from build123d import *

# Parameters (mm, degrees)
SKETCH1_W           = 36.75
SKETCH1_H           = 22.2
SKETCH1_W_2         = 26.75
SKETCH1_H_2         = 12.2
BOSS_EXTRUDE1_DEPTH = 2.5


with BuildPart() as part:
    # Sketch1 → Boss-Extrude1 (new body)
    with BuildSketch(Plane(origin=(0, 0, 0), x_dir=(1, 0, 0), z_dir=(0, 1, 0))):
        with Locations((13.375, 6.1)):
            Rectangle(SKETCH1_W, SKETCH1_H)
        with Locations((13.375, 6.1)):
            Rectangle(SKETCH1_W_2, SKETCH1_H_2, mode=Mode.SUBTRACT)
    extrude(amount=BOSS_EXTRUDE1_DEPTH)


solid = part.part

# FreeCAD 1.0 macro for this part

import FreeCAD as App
import Part
import Sketcher


def add_polygon(sketch, points):
    """Adds a closed chain of lines whose ends are joined by coincident constraints."""
    first, n = sketch.GeometryCount, len(points)
    for a, b in zip(points, points[1:] + points[:1]):
        sketch.addGeometry(Part.LineSegment(App.Vector(*a, 0), App.Vector(*b, 0)), False)
    for i in range(n):
        sketch.addConstraint(Sketcher.Constraint("Coincident", first + i, 2, first + (i + 1) % n, 1))

doc = App.newDocument("Part")
body = doc.addObject("PartDesign::Body", "Body")

# Sketch on XZ plane
sketch1 = doc.addObject("Sketcher::SketchObject", "Sketch")
body.addObject(sketch1)
sketch1.AttachmentSupport = (doc.XZ_Plane, [""])
sketch1.MapMode = "FlatFace"
add_polygon(sketch1, [(-5, -17.2), (-5, 5), (31.75, 5), (31.75, -17.2)])  # lines 0-3
add_polygon(sketch1, [(26.75, 0), (0, 0), (0, -12.2), (26.75, -12.2)])  # lines 4-7
sketch1.addConstraint(Sketcher.Constraint("Vertical", 0))
sketch1.addConstraint(Sketcher.Constraint("Horizontal", 1))
sketch1.addConstraint(Sketcher.Constraint("Vertical", 2))
sketch1.addConstraint(Sketcher.Constraint("Horizontal", 3))
sketch1.addConstraint(Sketcher.Constraint("Horizontal", 4))
sketch1.addConstraint(Sketcher.Constraint("Vertical", 5))
sketch1.addConstraint(Sketcher.Constraint("Horizontal", 6))
sketch1.addConstraint(Sketcher.Constraint("Vertical", 7))
sketch1.addConstraint(Sketcher.Constraint("Coincident", 4, 2, -1, 1))
sketch1.addConstraint(Sketcher.Constraint("DistanceY", 0, 1, 0, 2, 22.2))
sketch1.addConstraint(Sketcher.Constraint("DistanceY", 5, 2, 5, 1, 12.2))
sketch1.addConstraint(Sketcher.Constraint("DistanceX", 0, 2, -1, 1, 5.0))
sketch1.addConstraint(Sketcher.Constraint("DistanceY", -1, 1, 0, 2, 5.0))
sketch1.addConstraint(Sketcher.Constraint("DistanceX", 6, 2, 2, 2, 5.0))
sketch1.addConstraint(Sketcher.Constraint("DistanceX", 1, 1, 1, 2, 36.75))
pad1 = doc.addObject("PartDesign::Pad", "Pad")
body.addObject(pad1)
pad1.Profile = sketch1
pad1.Length = 2.5
pad1.Reversed = True

doc.recompute()
